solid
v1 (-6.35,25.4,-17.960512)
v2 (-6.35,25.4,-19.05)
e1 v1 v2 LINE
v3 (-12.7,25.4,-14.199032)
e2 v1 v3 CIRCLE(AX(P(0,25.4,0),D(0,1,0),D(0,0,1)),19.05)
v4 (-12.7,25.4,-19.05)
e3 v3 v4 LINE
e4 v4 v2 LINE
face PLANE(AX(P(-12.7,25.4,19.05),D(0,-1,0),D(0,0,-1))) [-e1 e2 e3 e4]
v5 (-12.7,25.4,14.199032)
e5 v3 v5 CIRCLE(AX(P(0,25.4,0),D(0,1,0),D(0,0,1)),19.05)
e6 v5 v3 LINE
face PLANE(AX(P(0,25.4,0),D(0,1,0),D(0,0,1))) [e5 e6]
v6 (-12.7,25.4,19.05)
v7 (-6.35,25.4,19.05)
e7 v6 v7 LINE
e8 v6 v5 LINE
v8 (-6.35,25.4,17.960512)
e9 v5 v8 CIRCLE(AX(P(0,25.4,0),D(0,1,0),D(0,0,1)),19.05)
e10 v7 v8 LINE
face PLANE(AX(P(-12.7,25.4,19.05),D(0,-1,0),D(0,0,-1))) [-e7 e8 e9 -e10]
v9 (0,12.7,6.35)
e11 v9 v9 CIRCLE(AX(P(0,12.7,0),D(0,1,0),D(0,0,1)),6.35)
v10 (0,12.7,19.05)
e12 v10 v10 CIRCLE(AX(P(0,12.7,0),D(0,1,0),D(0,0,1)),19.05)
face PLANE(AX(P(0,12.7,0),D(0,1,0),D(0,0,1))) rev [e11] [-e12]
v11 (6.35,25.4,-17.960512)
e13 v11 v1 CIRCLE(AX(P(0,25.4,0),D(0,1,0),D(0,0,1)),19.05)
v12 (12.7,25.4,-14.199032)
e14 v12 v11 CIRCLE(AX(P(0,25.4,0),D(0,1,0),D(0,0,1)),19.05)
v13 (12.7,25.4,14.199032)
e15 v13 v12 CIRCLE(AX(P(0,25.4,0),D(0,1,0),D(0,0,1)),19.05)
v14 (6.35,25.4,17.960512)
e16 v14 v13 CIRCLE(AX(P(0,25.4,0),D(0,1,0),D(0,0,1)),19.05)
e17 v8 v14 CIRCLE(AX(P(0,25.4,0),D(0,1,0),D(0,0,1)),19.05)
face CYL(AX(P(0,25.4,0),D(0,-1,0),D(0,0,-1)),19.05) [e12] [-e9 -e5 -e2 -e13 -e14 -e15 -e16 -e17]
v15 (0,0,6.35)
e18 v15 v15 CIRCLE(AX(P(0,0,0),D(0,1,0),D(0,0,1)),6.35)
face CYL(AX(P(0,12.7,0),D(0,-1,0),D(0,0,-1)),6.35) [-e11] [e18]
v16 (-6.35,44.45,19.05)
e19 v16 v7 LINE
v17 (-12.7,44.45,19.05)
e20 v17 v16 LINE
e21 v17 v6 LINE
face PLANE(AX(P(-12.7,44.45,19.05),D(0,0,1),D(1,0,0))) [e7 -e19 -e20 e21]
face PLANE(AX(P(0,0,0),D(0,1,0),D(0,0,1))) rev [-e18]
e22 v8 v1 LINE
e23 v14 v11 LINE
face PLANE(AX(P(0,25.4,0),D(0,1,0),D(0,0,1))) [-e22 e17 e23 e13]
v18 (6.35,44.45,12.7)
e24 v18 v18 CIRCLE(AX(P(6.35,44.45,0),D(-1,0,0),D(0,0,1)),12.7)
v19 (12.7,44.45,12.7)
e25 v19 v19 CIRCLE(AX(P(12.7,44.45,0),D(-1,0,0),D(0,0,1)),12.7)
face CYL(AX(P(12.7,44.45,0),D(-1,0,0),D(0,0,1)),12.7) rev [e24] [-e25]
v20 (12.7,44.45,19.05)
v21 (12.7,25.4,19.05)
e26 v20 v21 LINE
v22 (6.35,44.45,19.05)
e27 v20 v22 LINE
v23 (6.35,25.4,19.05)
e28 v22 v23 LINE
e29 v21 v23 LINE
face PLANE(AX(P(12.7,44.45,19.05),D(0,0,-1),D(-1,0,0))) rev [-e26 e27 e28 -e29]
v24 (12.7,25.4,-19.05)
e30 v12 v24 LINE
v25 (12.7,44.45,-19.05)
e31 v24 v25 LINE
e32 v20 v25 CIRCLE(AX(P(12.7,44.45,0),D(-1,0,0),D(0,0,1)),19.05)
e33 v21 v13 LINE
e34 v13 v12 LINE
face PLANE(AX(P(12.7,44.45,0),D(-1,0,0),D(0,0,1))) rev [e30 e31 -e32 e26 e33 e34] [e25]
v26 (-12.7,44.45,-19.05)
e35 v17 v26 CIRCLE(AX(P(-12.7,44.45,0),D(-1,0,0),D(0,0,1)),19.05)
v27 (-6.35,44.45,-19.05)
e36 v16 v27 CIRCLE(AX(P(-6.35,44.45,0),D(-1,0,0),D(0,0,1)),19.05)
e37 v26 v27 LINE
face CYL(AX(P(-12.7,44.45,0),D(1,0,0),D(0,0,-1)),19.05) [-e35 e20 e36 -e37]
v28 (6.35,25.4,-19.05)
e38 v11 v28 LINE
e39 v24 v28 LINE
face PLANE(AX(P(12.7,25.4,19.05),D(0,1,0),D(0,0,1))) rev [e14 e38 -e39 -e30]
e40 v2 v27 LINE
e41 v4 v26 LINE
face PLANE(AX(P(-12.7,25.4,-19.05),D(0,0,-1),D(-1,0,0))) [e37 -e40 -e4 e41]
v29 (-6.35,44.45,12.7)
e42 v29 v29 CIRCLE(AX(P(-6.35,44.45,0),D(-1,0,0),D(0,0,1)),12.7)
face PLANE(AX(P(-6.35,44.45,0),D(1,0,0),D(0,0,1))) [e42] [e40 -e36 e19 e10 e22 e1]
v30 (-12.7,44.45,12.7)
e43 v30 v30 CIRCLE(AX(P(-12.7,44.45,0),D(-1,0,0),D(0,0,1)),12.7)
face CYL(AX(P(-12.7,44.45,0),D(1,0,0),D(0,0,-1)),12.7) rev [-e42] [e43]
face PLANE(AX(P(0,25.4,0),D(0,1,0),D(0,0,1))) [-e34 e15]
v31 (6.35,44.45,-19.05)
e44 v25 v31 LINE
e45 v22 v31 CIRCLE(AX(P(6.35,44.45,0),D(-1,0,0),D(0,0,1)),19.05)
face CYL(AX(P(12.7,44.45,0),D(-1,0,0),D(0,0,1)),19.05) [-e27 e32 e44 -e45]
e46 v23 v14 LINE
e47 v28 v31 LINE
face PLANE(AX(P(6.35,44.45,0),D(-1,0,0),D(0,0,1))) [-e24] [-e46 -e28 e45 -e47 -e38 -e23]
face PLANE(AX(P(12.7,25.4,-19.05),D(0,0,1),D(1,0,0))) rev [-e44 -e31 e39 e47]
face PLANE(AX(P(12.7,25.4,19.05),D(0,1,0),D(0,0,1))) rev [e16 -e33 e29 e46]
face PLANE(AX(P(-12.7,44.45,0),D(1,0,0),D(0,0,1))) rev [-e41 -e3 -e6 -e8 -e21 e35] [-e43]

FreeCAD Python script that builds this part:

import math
import FreeCAD as App
import Part
import Sketcher

V = App.Vector
Q = App.Units.Quantity

doc = App.newDocument("Part")
body = doc.addObject("PartDesign::Body", "Body")

# Sketch on XZ plane
sketch1 = body.newObject("Sketcher::SketchObject", "Sketch")
sketch1.AttachmentSupport = (doc.getObject("XZ_Plane"), [""])
sketch1.MapMode = "FlatFace"
sketch1.addGeometry(Part.Circle(V(0, 0, 0), V(0, 0, 1), 6), False)
sketch1.addConstraint([
    Sketcher.Constraint("Coincident", 0, 3, -1, 1),
    Sketcher.Constraint("Diameter", 0, Q("0.5 in")),
])
pad1 = body.newObject("PartDesign::Pad", "Pad")
pad1.Profile = sketch1
pad1.Length = Q("0.5 in")
pad1.Reversed = True

# Sketch on XZ plane
sketch2 = body.newObject("Sketcher::SketchObject", "Sketch001")
sketch2.AttachmentSupport = (doc.getObject("XZ_Plane"), [""])
sketch2.MapMode = "FlatFace"
sketch2.AttachmentOffset = App.Placement(V(0, 0, -0.5 * 25.4), App.Rotation())
sketch2.addGeometry(Part.Circle(V(0, 0, 0), V(0, 0, 1), 19), False)
sketch2.addConstraint([
    Sketcher.Constraint("Coincident", 0, 3, -1, 1),
    Sketcher.Constraint("Diameter", 0, Q("1.5 in")),
])
pad2 = body.newObject("PartDesign::Pad", "Pad001")
pad2.Profile = sketch2
pad2.Length = Q("0.5 in")
pad2.Reversed = True

# Sketch on YZ plane
sketch3 = body.newObject("Sketcher::SketchObject", "Sketch002")
sketch3.AttachmentSupport = (doc.getObject("YZ_Plane"), [""])
sketch3.MapMode = "FlatFace"
sketch3.AttachmentOffset = App.Placement(V(0, 0, 0.25 * 25.4), App.Rotation())
sketch3.addGeometry([
    Part.LineSegment(V(44, 19, 0), V(25, 19, 0)),
    Part.LineSegment(V(25, 19, 0), V(25, -19, 0)),
    Part.LineSegment(V(25, -19, 0), V(44, -19, 0)),
    Part.ArcOfCircle(Part.Circle(V(44, 0, 0), V(0, 0, 1), 19), math.radians(-90), math.radians(90)),
], False)
sketch3.addConstraint([
    Sketcher.Constraint("Coincident", 0, 2, 1, 1),
    Sketcher.Constraint("Coincident", 1, 2, 2, 1),
    Sketcher.Constraint("Tangent", 2, 2, 3, 1),
    Sketcher.Constraint("Tangent", 3, 2, 0, 1),
    Sketcher.Constraint("Horizontal", 0),
    Sketcher.Constraint("Vertical", 1),
    Sketcher.Constraint("Horizontal", 2),
    Sketcher.Constraint("PointOnObject", 3, 3, -1),
    Sketcher.Constraint("Radius", 3, Q("0.75 in")),
    Sketcher.Constraint("DistanceX", -1, 1, 0, 2, Q("1 in")),
    Sketcher.Constraint("DistanceX", 0, 2, 0, 1, Q("0.75 in")),
])
pad3 = body.newObject("PartDesign::Pad", "Pad002")
pad3.Profile = sketch3
pad3.Length = Q("0.25 in")

# Sketch on YZ plane
sketch4 = body.newObject("Sketcher::SketchObject", "Sketch003")
sketch4.AttachmentSupport = (doc.getObject("YZ_Plane"), [""])
sketch4.MapMode = "FlatFace"
sketch4.AttachmentOffset = App.Placement(V(0, 0, 0.25 * 25.4), App.Rotation())
sketch4.addGeometry(Part.Circle(V(44, 0, 0), V(0, 0, 1), 13), False)
sketch4.addConstraint([
    Sketcher.Constraint("PointOnObject", 0, 3, -1),
    Sketcher.Constraint("Diameter", 0, Q("1 in")),
    Sketcher.Constraint("DistanceX", -1, 1, 0, 3, Q("1.75 in")),
])
pocket1 = body.newObject("PartDesign::Pocket", "Pocket")
pocket1.Profile = sketch4
pocket1.Length = Q("0.25 in")
pocket1.Reversed = True
doc.recompute()

mirrored = body.newObject("PartDesign::Mirrored", "Mirrored")
mirrored.Originals = [pad3, pocket1]
mirrored.MirrorPlane = (doc.getObject("YZ_Plane"), [""])
body.Tip = mirrored

doc.recompute()
